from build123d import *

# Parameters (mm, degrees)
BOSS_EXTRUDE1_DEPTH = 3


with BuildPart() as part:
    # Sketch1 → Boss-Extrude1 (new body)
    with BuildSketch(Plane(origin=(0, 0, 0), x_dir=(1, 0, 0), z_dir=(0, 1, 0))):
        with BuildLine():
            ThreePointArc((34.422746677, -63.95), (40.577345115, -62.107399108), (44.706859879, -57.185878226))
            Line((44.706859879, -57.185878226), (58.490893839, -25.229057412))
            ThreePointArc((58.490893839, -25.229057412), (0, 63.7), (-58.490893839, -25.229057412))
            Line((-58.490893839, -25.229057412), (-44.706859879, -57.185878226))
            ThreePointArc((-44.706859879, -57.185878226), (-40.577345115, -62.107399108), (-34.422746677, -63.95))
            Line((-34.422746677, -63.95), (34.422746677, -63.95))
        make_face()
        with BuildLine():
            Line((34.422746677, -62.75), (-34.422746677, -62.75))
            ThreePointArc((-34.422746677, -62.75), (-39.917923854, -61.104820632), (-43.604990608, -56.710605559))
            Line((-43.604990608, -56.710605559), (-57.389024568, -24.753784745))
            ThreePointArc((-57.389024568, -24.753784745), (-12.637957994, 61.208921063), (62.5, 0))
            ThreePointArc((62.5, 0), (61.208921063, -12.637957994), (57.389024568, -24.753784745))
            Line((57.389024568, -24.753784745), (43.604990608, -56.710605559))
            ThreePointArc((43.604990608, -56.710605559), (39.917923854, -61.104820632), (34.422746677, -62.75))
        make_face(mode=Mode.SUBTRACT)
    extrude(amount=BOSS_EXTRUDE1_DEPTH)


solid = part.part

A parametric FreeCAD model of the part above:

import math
import FreeCAD as App
import Part
import Sketcher

V = App.Vector

doc = App.newDocument("Part")
body = doc.addObject("PartDesign::Body", "Body")

sketch1 = body.newObject("Sketcher::SketchObject", "Sketch")
sketch1.AttachmentSupport = (doc.getObject("XZ_Plane"), [""])
sketch1.MapMode = "FlatFace"
sketch1.addGeometry(Part.ArcOfCircle(Part.Circle(V(34.422747, 52.75, 0), V(0, 0, 1), 11.2), math.radians(23.332135), math.radians(90)), False)
sketch1.addGeometry(Part.LineSegment(V(44.70686, 57.185878, 0), V(58.490894, 25.229057, 0)), False)
sketch1.addGeometry(Part.ArcOfCircle(Part.Circle(V(0, 0, 0), V(0, 0, 1), 63.7), math.radians(156.667865), math.radians(383.332135)), False)
sketch1.addGeometry(Part.LineSegment(V(-58.490894, 25.229057, 0), V(-44.70686, 57.185878, 0)), False)
sketch1.addGeometry(Part.ArcOfCircle(Part.Circle(V(-34.422747, 52.75, 0), V(0, 0, 1), 11.2), math.radians(90), math.radians(156.667865)), False)
sketch1.addGeometry(Part.LineSegment(V(-34.422747, 63.95, 0), V(34.422747, 63.95, 0)), False)
sketch1.addGeometry(Part.ArcOfCircle(Part.Circle(V(34.422747, 52.75, 0), V(0, 0, 1), 10), math.radians(23.332135), math.radians(90)), False)
sketch1.addGeometry(Part.LineSegment(V(34.422747, 62.75, 0), V(-34.422747, 62.75, 0)), False)
sketch1.addGeometry(Part.ArcOfCircle(Part.Circle(V(-34.422747, 52.75, 0), V(0, 0, 1), 10), math.radians(90), math.radians(156.667865)), False)
sketch1.addGeometry(Part.LineSegment(V(-43.604991, 56.710606, 0), V(-57.389025, 24.753785, 0)), False)
sketch1.addGeometry(Part.ArcOfCircle(Part.Circle(V(0, 0, 0), V(0, 0, 1), 62.5), math.radians(156.667865), math.radians(360)), False)
sketch1.addGeometry(Part.ArcOfCircle(Part.Circle(V(0, 0, 0), V(0, 0, 1), 62.5), math.radians(0), math.radians(23.332135)), False)
sketch1.addGeometry(Part.LineSegment(V(57.389025, 24.753785, 0), V(43.604991, 56.710606, 0)), False)
sketch1.addConstraint(Sketcher.Constraint("Tangent", 0, 1, 1, 1))
sketch1.addConstraint(Sketcher.Constraint("Tangent", 1, 2, 2, 2))
sketch1.addConstraint(Sketcher.Constraint("Tangent", 2, 1, 3, 1))
sketch1.addConstraint(Sketcher.Constraint("Tangent", 3, 2, 4, 2))
sketch1.addConstraint(Sketcher.Constraint("Tangent", 4, 1, 5, 1))
sketch1.addConstraint(Sketcher.Constraint("Tangent", 5, 2, 0, 2))
sketch1.addConstraint(Sketcher.Constraint("Tangent", 6, 2, 7, 1))
sketch1.addConstraint(Sketcher.Constraint("Tangent", 7, 2, 8, 1))
sketch1.addConstraint(Sketcher.Constraint("Tangent", 8, 2, 9, 1))
sketch1.addConstraint(Sketcher.Constraint("Tangent", 9, 2, 10, 1))
sketch1.addConstraint(Sketcher.Constraint("Tangent", 10, 2, 11, 1))
sketch1.addConstraint(Sketcher.Constraint("Tangent", 11, 2, 12, 1))
sketch1.addConstraint(Sketcher.Constraint("Tangent", 12, 2, 6, 1))
sketch1.addConstraint(Sketcher.Constraint("Horizontal", 5))
sketch1.addConstraint(Sketcher.Constraint("Horizontal", 7))
sketch1.addConstraint(Sketcher.Constraint("Coincident", 2, 3, -1, 1))
sketch1.addConstraint(Sketcher.Constraint("Coincident", 10, 3, -1, 1))
sketch1.addConstraint(Sketcher.Constraint("Coincident", 6, 3, 0, 3))
sketch1.addConstraint(Sketcher.Constraint("Coincident", 8, 3, 4, 3))
sketch1.addConstraint(Sketcher.Constraint("Equal", 0, 4))
sketch1.addConstraint(Sketcher.Constraint("Equal", 10, 11))
sketch1.addConstraint(Sketcher.Constraint("PointOnObject", 10, 2, -1))
sketch1.addConstraint(Sketcher.Constraint("Parallel", 3, 9))
sketch1.addConstraint(Sketcher.Constraint("Horizontal", 1, 2, 2, 1))
sketch1.addConstraint(Sketcher.Constraint("Radius", 6, 10.0))
sketch1.addConstraint(Sketcher.Constraint("Radius", 0, 11.2))
sketch1.addConstraint(Sketcher.Constraint("Radius", 2, 63.7))
sketch1.addConstraint(Sketcher.Constraint("DistanceY", -1, 1, 0, 3, 52.75))
sketch1.addConstraint(Sketcher.Constraint("DistanceX", 5, 1, 5, 2, 68.845493))
pad1 = body.newObject("PartDesign::Pad", "Pad")
pad1.Profile = sketch1
pad1.Length = 3
pad1.Reversed = True

doc.recompute()
